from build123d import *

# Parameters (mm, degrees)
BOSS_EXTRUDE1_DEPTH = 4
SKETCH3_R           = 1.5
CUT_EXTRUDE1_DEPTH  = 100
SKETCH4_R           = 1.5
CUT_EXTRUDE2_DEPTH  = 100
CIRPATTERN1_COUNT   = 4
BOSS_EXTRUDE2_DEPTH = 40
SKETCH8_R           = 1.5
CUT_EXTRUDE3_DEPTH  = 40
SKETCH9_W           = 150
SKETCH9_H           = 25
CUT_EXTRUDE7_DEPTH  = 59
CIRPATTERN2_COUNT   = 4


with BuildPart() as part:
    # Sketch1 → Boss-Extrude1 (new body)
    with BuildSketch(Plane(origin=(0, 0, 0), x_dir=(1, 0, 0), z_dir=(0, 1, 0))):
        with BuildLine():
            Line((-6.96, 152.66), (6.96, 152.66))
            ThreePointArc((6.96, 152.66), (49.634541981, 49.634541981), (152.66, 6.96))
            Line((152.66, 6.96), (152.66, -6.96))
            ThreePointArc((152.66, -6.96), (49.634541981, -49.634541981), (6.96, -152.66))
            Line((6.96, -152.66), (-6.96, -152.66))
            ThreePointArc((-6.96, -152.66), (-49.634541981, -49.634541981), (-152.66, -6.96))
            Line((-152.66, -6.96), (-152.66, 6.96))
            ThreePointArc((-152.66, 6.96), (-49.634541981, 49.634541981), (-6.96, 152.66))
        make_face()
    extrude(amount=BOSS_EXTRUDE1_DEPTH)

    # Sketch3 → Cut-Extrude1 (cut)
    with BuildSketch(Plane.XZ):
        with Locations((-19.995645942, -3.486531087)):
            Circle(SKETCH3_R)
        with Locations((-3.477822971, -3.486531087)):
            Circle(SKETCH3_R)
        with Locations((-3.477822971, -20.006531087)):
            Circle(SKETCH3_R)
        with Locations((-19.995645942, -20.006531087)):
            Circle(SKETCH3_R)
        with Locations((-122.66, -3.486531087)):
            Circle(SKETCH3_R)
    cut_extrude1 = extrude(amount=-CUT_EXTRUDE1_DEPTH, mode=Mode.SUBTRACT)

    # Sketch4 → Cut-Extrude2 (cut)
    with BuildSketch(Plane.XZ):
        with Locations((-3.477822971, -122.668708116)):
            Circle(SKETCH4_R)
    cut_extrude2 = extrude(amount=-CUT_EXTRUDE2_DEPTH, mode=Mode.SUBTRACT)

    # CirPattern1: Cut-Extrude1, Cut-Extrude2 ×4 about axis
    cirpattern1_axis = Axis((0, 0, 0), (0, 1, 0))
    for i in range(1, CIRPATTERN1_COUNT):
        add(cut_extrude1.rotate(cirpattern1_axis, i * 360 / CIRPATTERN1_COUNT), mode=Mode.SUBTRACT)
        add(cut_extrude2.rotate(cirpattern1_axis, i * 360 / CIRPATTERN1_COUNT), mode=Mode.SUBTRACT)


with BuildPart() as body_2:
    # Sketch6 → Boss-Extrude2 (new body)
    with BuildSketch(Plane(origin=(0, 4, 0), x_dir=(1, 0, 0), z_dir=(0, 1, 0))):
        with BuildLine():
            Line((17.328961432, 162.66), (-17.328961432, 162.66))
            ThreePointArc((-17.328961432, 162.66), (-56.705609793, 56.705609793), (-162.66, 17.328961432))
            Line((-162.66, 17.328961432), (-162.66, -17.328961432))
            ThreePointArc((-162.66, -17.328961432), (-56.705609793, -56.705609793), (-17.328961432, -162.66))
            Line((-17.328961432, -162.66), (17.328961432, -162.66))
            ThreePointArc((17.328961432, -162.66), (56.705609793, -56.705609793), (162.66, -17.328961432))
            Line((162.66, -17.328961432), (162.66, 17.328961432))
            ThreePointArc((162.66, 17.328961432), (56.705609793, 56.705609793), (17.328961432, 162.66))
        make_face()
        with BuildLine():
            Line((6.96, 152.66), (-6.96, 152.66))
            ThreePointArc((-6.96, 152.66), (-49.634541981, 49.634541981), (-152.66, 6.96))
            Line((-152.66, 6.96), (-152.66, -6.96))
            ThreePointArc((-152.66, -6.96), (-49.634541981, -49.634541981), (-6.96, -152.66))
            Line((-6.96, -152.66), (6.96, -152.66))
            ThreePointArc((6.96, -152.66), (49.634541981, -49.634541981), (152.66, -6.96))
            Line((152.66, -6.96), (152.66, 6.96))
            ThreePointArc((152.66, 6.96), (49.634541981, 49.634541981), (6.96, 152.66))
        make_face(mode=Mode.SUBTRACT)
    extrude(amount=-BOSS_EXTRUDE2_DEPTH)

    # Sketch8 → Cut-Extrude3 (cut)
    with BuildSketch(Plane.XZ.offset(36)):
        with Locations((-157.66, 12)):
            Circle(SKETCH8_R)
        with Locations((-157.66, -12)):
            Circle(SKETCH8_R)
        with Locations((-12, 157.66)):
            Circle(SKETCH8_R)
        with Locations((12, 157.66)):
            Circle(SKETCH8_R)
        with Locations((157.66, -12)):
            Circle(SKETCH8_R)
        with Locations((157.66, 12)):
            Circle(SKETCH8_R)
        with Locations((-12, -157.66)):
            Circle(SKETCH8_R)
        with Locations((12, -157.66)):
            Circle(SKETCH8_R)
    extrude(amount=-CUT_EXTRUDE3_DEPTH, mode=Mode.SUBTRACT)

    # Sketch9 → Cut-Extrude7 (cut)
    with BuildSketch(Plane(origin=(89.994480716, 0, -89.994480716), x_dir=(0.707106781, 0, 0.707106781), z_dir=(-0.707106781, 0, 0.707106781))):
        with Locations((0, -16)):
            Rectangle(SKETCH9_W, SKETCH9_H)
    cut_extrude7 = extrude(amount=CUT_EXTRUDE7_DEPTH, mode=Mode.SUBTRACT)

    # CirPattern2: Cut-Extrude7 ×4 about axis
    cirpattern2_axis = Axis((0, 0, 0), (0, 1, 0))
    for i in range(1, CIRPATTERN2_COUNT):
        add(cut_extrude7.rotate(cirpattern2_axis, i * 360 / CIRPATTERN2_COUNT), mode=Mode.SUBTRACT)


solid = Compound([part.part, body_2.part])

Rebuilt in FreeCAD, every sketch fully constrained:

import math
import FreeCAD as App
import Part
import Sketcher
from FreeCAD import Vector

doc = App.newDocument("Part")
body = doc.addObject("PartDesign::Body", "Body")

# Sketch on XZ plane
sketch1 = body.newObject("Sketcher::SketchObject", "Sketch")
sketch1.AttachmentSupport = (doc.getObject("XZ_Plane"), [""])
sketch1.MapMode = "FlatFace"
sketch1.addGeometry(Part.LineSegment(Vector(7, -153, 0), Vector(-7, -153, 0)), False)
sketch1.addGeometry(Part.ArcOfCircle(Part.Circle(Vector(-153, -153, 0), Vector(0, 0, 1), 146), math.radians(0), math.radians(90)), False)
sketch1.addGeometry(Part.LineSegment(Vector(-153, -7, 0), Vector(-153, 7, 0)), False)
sketch1.addGeometry(Part.ArcOfCircle(Part.Circle(Vector(-153, 153, 0), Vector(0, 0, 1), 146), math.radians(-90), math.radians(0)), False)
sketch1.addGeometry(Part.LineSegment(Vector(-7, 153, 0), Vector(7, 153, 0)), False)
sketch1.addGeometry(Part.ArcOfCircle(Part.Circle(Vector(153, 153, 0), Vector(0, 0, 1), 146), math.radians(180), math.radians(270)), False)
sketch1.addGeometry(Part.LineSegment(Vector(153, 7, 0), Vector(153, -7, 0)), False)
sketch1.addGeometry(Part.ArcOfCircle(Part.Circle(Vector(153, -153, 0), Vector(0, 0, 1), 146), math.radians(90), math.radians(180)), False)
sketch1.addConstraint(Sketcher.Constraint("Coincident", 0, 2, 1, 1))
sketch1.addConstraint(Sketcher.Constraint("Coincident", 1, 2, 2, 1))
sketch1.addConstraint(Sketcher.Constraint("Coincident", 2, 2, 3, 1))
sketch1.addConstraint(Sketcher.Constraint("Coincident", 3, 2, 4, 1))
sketch1.addConstraint(Sketcher.Constraint("Coincident", 4, 2, 5, 1))
sketch1.addConstraint(Sketcher.Constraint("Coincident", 5, 2, 6, 1))
sketch1.addConstraint(Sketcher.Constraint("Coincident", 6, 2, 7, 1))
sketch1.addConstraint(Sketcher.Constraint("Coincident", 7, 2, 0, 1))
sketch1.addConstraint(Sketcher.Constraint("Horizontal", 0))
sketch1.addConstraint(Sketcher.Constraint("Vertical", 2))
sketch1.addConstraint(Sketcher.Constraint("Horizontal", 4))
sketch1.addConstraint(Sketcher.Constraint("Vertical", 6))
sketch1.addConstraint(Sketcher.Constraint("Equal", 1, 3))
sketch1.addConstraint(Sketcher.Constraint("Equal", 3, 5))
sketch1.addConstraint(Sketcher.Constraint("Equal", 5, 7))
sketch1.addConstraint(Sketcher.Constraint("Symmetric", 1, 3, 5, 3, -1, 1))
sketch1.addConstraint(Sketcher.Constraint("Symmetric", 3, 3, 7, 3, -1, 1))
sketch1.addConstraint(Sketcher.Constraint("Symmetric", 3, 3, 5, 3, -2))
sketch1.addConstraint(Sketcher.Constraint("Horizontal", 7, 3, 0, 2))
sketch1.addConstraint(Sketcher.Constraint("Horizontal", 5, 3, 3, 2))
sketch1.addConstraint(Sketcher.Constraint("Vertical", 3, 3, 1, 2))
sketch1.addConstraint(Sketcher.Constraint("Vertical", 7, 3, 5, 2))
sketch1.addConstraint(Sketcher.Constraint("Equal", 4, 2))
sketch1.addConstraint(Sketcher.Constraint("Radius", 1, 145.7))
sketch1.addConstraint(Sketcher.Constraint("DistanceX", 0, 2, 0, 1, 13.92))
pad1 = body.newObject("PartDesign::Pad", "Pad")
pad1.Profile = sketch1
pad1.Length = 4
pad1.Reversed = True

# Sketch on XZ plane
sketch2 = body.newObject("Sketcher::SketchObject", "Sketch001")
sketch2.AttachmentSupport = (doc.getObject("XZ_Plane"), [""])
sketch2.MapMode = "FlatFace"
sketch2.addGeometry(Part.Circle(Vector(-20, -3.5, 0), Vector(0, 0, 1), 1.5), False)
sketch2.addGeometry(Part.Circle(Vector(-3.5, -3.5, 0), Vector(0, 0, 1), 1.5), False)
sketch2.addGeometry(Part.Circle(Vector(-3.5, -20, 0), Vector(0, 0, 1), 1.5), False)
sketch2.addGeometry(Part.Circle(Vector(-20, -20, 0), Vector(0, 0, 1), 1.5), False)
sketch2.addGeometry(Part.Circle(Vector(-122.7, -3.5, 0), Vector(0, 0, 1), 1.5), False)
sketch2.addConstraint(Sketcher.Constraint("Equal", 0, 1))
sketch2.addConstraint(Sketcher.Constraint("Equal", 1, 2))
sketch2.addConstraint(Sketcher.Constraint("Equal", 2, 3))
sketch2.addConstraint(Sketcher.Constraint("Equal", 3, 4))
sketch2.addConstraint(Sketcher.Constraint("Horizontal", 0, 3, 1, 3))
sketch2.addConstraint(Sketcher.Constraint("Horizontal", 2, 3, 3, 3))
sketch2.addConstraint(Sketcher.Constraint("Horizontal", 1, 3, 4, 3))
sketch2.addConstraint(Sketcher.Constraint("Vertical", 1, 3, 2, 3))
sketch2.addConstraint(Sketcher.Constraint("Vertical", 0, 3, 3, 3))
sketch2.addConstraint(Sketcher.Constraint("Diameter", 0, 3.0))
sketch2.addConstraint(Sketcher.Constraint("DistanceX", 4, 3, -1, 1, 122.66))
sketch2.addConstraint(Sketcher.Constraint("DistanceY", 2, 3, 1, 3, 16.52))
sketch2.addConstraint(Sketcher.Constraint("DistanceY", 0, 3, -1, 1, 3.486531))
sketch2.addConstraint(Sketcher.Constraint("DistanceX", 0, 3, -1, 1, 19.995646))
sketch2.addConstraint(Sketcher.Constraint("DistanceX", 1, 3, -1, 1, 3.477823))
pocket1 = body.newObject("PartDesign::Pocket", "Pocket")
pocket1.Profile = sketch2
pocket1.Length = 100

# Sketch on XZ plane
sketch3 = body.newObject("Sketcher::SketchObject", "Sketch002")
sketch3.AttachmentSupport = (doc.getObject("XZ_Plane"), [""])
sketch3.MapMode = "FlatFace"
sketch3.addGeometry(Part.Circle(Vector(-3.5, -122.7, 0), Vector(0, 0, 1), 1.5), False)
sketch3.addConstraint(Sketcher.Constraint("Diameter", 0, 3.0))
sketch3.addConstraint(Sketcher.Constraint("DistanceY", 0, 3, -1, 1, 122.668708))
sketch3.addConstraint(Sketcher.Constraint("DistanceX", 0, 3, -1, 1, 3.477823))
pocket2 = body.newObject("PartDesign::Pocket", "Pocket001")
pocket2.Profile = sketch3
pocket2.Length = 100
doc.recompute()

polarpattern = body.newObject("PartDesign::PolarPattern", "PolarPattern")
polarpattern.Originals = [pocket1, pocket2]
polarpattern.Axis = (doc.getObject("Y_Axis"), [""])
polarpattern.Angle = 360
polarpattern.Occurrences = 4
body.Tip = polarpattern
body2 = doc.addObject("PartDesign::Body", "Body001")

# Sketch on XZ plane
sketch4 = body2.newObject("Sketcher::SketchObject", "Sketch003")
sketch4.AttachmentSupport = (doc.getObject("XZ_Plane001"), [""])
sketch4.MapMode = "FlatFace"
sketch4.AttachmentOffset = App.Placement(Vector(0, 0, -4), App.Rotation())
sketch4.addGeometry(Part.LineSegment(Vector(17, -163, 0), Vector(-17, -163, 0)), False)
sketch4.addGeometry(Part.ArcOfCircle(Part.Circle(Vector(-153, -153, 0), Vector(0, 0, 1), 136), math.radians(-4), math.radians(94)), False)
sketch4.addGeometry(Part.LineSegment(Vector(-163, -17, 0), Vector(-163, 17, 0)), False)
sketch4.addGeometry(Part.ArcOfCircle(Part.Circle(Vector(-153, 153, 0), Vector(0, 0, 1), 136), math.radians(-94), math.radians(4)), False)
sketch4.addGeometry(Part.LineSegment(Vector(-17, 163, 0), Vector(17, 163, 0)), False)
sketch4.addGeometry(Part.ArcOfCircle(Part.Circle(Vector(153, 153, 0), Vector(0, 0, 1), 136), math.radians(176), math.radians(274)), False)
sketch4.addGeometry(Part.LineSegment(Vector(163, 17, 0), Vector(163, -17, 0)), False)
sketch4.addGeometry(Part.ArcOfCircle(Part.Circle(Vector(153, -153, 0), Vector(0, 0, 1), 136), math.radians(86), math.radians(184)), False)
sketch4.addGeometry(Part.LineSegment(Vector(-7, -153, 0), Vector(7, -153, 0)), False)
sketch4.addGeometry(Part.ArcOfCircle(Part.Circle(Vector(153, -153, 0), Vector(0, 0, 1), 146), math.radians(90), math.radians(180)), False)
sketch4.addGeometry(Part.LineSegment(Vector(153, -7, 0), Vector(153, 7, 0)), False)
sketch4.addGeometry(Part.ArcOfCircle(Part.Circle(Vector(153, 153, 0), Vector(0, 0, 1), 146), math.radians(180), math.radians(270)), False)
sketch4.addGeometry(Part.LineSegment(Vector(7, 153, 0), Vector(-7, 153, 0)), False)
sketch4.addGeometry(Part.ArcOfCircle(Part.Circle(Vector(-153, 153, 0), Vector(0, 0, 1), 146), math.radians(-90), math.radians(0)), False)
sketch4.addGeometry(Part.LineSegment(Vector(-153, 7, 0), Vector(-153, -7, 0)), False)
sketch4.addGeometry(Part.ArcOfCircle(Part.Circle(Vector(-153, -153, 0), Vector(0, 0, 1), 146), math.radians(0), math.radians(90)), False)
sketch4.addConstraint(Sketcher.Constraint("Coincident", 0, 2, 1, 1))
sketch4.addConstraint(Sketcher.Constraint("Coincident", 1, 2, 2, 1))
sketch4.addConstraint(Sketcher.Constraint("Coincident", 2, 2, 3, 1))
sketch4.addConstraint(Sketcher.Constraint("Coincident", 3, 2, 4, 1))
sketch4.addConstraint(Sketcher.Constraint("Coincident", 4, 2, 5, 1))
sketch4.addConstraint(Sketcher.Constraint("Coincident", 5, 2, 6, 1))
sketch4.addConstraint(Sketcher.Constraint("Coincident", 6, 2, 7, 1))
sketch4.addConstraint(Sketcher.Constraint("Coincident", 7, 2, 0, 1))
sketch4.addConstraint(Sketcher.Constraint("Coincident", 8, 2, 9, 2))
sketch4.addConstraint(Sketcher.Constraint("Coincident", 9, 1, 10, 1))
sketch4.addConstraint(Sketcher.Constraint("Coincident", 10, 2, 11, 2))
sketch4.addConstraint(Sketcher.Constraint("Coincident", 11, 1, 12, 1))
sketch4.addConstraint(Sketcher.Constraint("Coincident", 12, 2, 13, 2))
sketch4.addConstraint(Sketcher.Constraint("Coincident", 13, 1, 14, 1))
sketch4.addConstraint(Sketcher.Constraint("Coincident", 14, 2, 15, 2))
sketch4.addConstraint(Sketcher.Constraint("Coincident", 15, 1, 8, 1))
sketch4.addConstraint(Sketcher.Constraint("Horizontal", 0))
sketch4.addConstraint(Sketcher.Constraint("Vertical", 2))
sketch4.addConstraint(Sketcher.Constraint("Horizontal", 4))
sketch4.addConstraint(Sketcher.Constraint("Vertical", 6))
sketch4.addConstraint(Sketcher.Constraint("Horizontal", 8))
sketch4.addConstraint(Sketcher.Constraint("Vertical", 10))
sketch4.addConstraint(Sketcher.Constraint("Horizontal", 12))
sketch4.addConstraint(Sketcher.Constraint("Vertical", 14))
sketch4.addConstraint(Sketcher.Constraint("Coincident", 9, 3, 7, 3))
sketch4.addConstraint(Sketcher.Constraint("Coincident", 11, 3, 5, 3))
sketch4.addConstraint(Sketcher.Constraint("Coincident", 13, 3, 3, 3))
sketch4.addConstraint(Sketcher.Constraint("Coincident", 15, 3, 1, 3))
sketch4.addConstraint(Sketcher.Constraint("Equal", 1, 3))
sketch4.addConstraint(Sketcher.Constraint("Equal", 3, 5))
sketch4.addConstraint(Sketcher.Constraint("Equal", 5, 7))
sketch4.addConstraint(Sketcher.Constraint("Equal", 9, 11))
sketch4.addConstraint(Sketcher.Constraint("Equal", 11, 13))
sketch4.addConstraint(Sketcher.Constraint("Equal", 13, 15))
sketch4.addConstraint(Sketcher.Constraint("Symmetric", 1, 3, 5, 3, -1, 1))
sketch4.addConstraint(Sketcher.Constraint("Symmetric", 3, 3, 7, 3, -1, 1))
sketch4.addConstraint(Sketcher.Constraint("Symmetric", 3, 3, 5, 3, -2))
sketch4.addConstraint(Sketcher.Constraint("Horizontal", 2, 2, 5, 2))
sketch4.addConstraint(Sketcher.Constraint("Horizontal", 15, 3, 8, 2))
sketch4.addConstraint(Sketcher.Constraint("Horizontal", 13, 3, 11, 1))
sketch4.addConstraint(Sketcher.Constraint("Vertical", 0, 2, 3, 2))
sketch4.addConstraint(Sketcher.Constraint("Vertical", 11, 3, 9, 1))
sketch4.addConstraint(Sketcher.Constraint("Vertical", 15, 3, 13, 1))
sketch4.addConstraint(Sketcher.Constraint("Equal", 4, 2))
sketch4.addConstraint(Sketcher.Constraint("Equal", 12, 10))
sketch4.addConstraint(Sketcher.Constraint("Radius", 1, 135.7))
sketch4.addConstraint(Sketcher.Constraint("Radius", 9, 145.7))
sketch4.addConstraint(Sketcher.Constraint("DistanceY", 0, 2, 1, 3, 10.0))
sketch4.addConstraint(Sketcher.Constraint("DistanceX", 8, 1, 8, 2, 13.92))
pad2 = body2.newObject("PartDesign::Pad", "Pad001")
pad2.Profile = sketch4
pad2.Length = 40

# Sketch on XZ plane
sketch5 = body2.newObject("Sketcher::SketchObject", "Sketch004")
sketch5.AttachmentSupport = (doc.getObject("XZ_Plane001"), [""])
sketch5.MapMode = "FlatFace"
sketch5.AttachmentOffset = App.Placement(Vector(0, 0, 36), App.Rotation())
sketch5.addGeometry(Part.Circle(Vector(-157.7, 12, 0), Vector(0, 0, 1), 1.5), False)
sketch5.addGeometry(Part.Circle(Vector(-157.7, -12, 0), Vector(0, 0, 1), 1.5), False)
sketch5.addGeometry(Part.Circle(Vector(-12, 157.7, 0), Vector(0, 0, 1), 1.5), False)
sketch5.addGeometry(Part.Circle(Vector(12, 157.7, 0), Vector(0, 0, 1), 1.5), False)
sketch5.addGeometry(Part.Circle(Vector(157.7, -12, 0), Vector(0, 0, 1), 1.5), False)
sketch5.addGeometry(Part.Circle(Vector(157.7, 12, 0), Vector(0, 0, 1), 1.5), False)
sketch5.addGeometry(Part.Circle(Vector(-12, -157.7, 0), Vector(0, 0, 1), 1.5), False)
sketch5.addGeometry(Part.Circle(Vector(12, -157.7, 0), Vector(0, 0, 1), 1.5), False)
sketch5.addConstraint(Sketcher.Constraint("Equal", 0, 1))
sketch5.addConstraint(Sketcher.Constraint("Equal", 1, 2))
sketch5.addConstraint(Sketcher.Constraint("Equal", 2, 3))
sketch5.addConstraint(Sketcher.Constraint("Equal", 3, 4))
sketch5.addConstraint(Sketcher.Constraint("Equal", 4, 5))
sketch5.addConstraint(Sketcher.Constraint("Equal", 5, 6))
sketch5.addConstraint(Sketcher.Constraint("Equal", 6, 7))
sketch5.addConstraint(Sketcher.Constraint("Symmetric", 0, 3, 4, 3, -1, 1))
sketch5.addConstraint(Sketcher.Constraint("Symmetric", 1, 3, 5, 3, -1, 1))
sketch5.addConstraint(Sketcher.Constraint("Symmetric", 3, 3, 6, 3, -1, 1))
sketch5.addConstraint(Sketcher.Constraint("Symmetric", 2, 3, 7, 3, -1, 1))
sketch5.addConstraint(Sketcher.Constraint("Symmetric", 2, 3, 3, 3, -2))
sketch5.addConstraint(Sketcher.Constraint("Symmetric", 1, 3, 4, 3, -2))
sketch5.addConstraint(Sketcher.Constraint("Diameter", 0, 3.0))
sketch5.addConstraint(Sketcher.Constraint("DistanceY", -1, 1, 0, 3, 12.0))
sketch5.addConstraint(Sketcher.Constraint("DistanceX", 2, 3, -1, 1, 12.0))
sketch5.addConstraint(Sketcher.Constraint("DistanceX", 0, 3, -1, 1, 157.66))
sketch5.addConstraint(Sketcher.Constraint("DistanceY", -1, 1, 2, 3, 157.66))
pocket3 = body2.newObject("PartDesign::Pocket", "Pocket002")
pocket3.Profile = sketch5
pocket3.Length = 40

# Sketch on an angled plane
sketch6 = body2.newObject("Sketcher::SketchObject", "Sketch005")
sketch6.Placement = App.Placement(Vector(89.994481, 0, -89.994481), App.Rotation(Vector(0.707106781, 0, 0.707106781), Vector(0, 0.999999999, 0), Vector(-0.707106781, 0, 0.707106781), "ZXY"))
sketch6.addGeometry(Part.LineSegment(Vector(-75, -3, 0), Vector(-75, -28, 0)), False)
sketch6.addGeometry(Part.LineSegment(Vector(-75, -28, 0), Vector(75, -28, 0)), False)
sketch6.addGeometry(Part.LineSegment(Vector(75, -28, 0), Vector(75, -3, 0)), False)
sketch6.addGeometry(Part.LineSegment(Vector(75, -3, 0), Vector(-75, -3, 0)), False)
sketch6.addConstraint(Sketcher.Constraint("Coincident", 0, 2, 1, 1))
sketch6.addConstraint(Sketcher.Constraint("Coincident", 1, 2, 2, 1))
sketch6.addConstraint(Sketcher.Constraint("Coincident", 2, 2, 3, 1))
sketch6.addConstraint(Sketcher.Constraint("Coincident", 3, 2, 0, 1))
sketch6.addConstraint(Sketcher.Constraint("Vertical", 0))
sketch6.addConstraint(Sketcher.Constraint("Horizontal", 1))
sketch6.addConstraint(Sketcher.Constraint("Vertical", 2))
sketch6.addConstraint(Sketcher.Constraint("Horizontal", 3))
sketch6.addConstraint(Sketcher.Constraint("DistanceX", 1, 1, 1, 2, 150.0))
sketch6.addConstraint(Sketcher.Constraint("DistanceY", 0, 2, 0, 1, 25.0))
sketch6.addConstraint(Sketcher.Constraint("DistanceX", 0, 2, -1, 1, 75.0))
sketch6.addConstraint(Sketcher.Constraint("DistanceY", 0, 2, -1, 1, 28.5))
pocket4 = body2.newObject("PartDesign::Pocket", "Pocket003")
pocket4.Profile = sketch6
pocket4.Length = 59
pocket4.Reversed = True
doc.recompute()

polarpattern2 = body2.newObject("PartDesign::PolarPattern", "PolarPattern001")
polarpattern2.Originals = [pocket4]
polarpattern2.Axis = (doc.getObject("Y_Axis001"), [""])
polarpattern2.Angle = 360
polarpattern2.Occurrences = 4
body2.Tip = polarpattern2

doc.recompute()
